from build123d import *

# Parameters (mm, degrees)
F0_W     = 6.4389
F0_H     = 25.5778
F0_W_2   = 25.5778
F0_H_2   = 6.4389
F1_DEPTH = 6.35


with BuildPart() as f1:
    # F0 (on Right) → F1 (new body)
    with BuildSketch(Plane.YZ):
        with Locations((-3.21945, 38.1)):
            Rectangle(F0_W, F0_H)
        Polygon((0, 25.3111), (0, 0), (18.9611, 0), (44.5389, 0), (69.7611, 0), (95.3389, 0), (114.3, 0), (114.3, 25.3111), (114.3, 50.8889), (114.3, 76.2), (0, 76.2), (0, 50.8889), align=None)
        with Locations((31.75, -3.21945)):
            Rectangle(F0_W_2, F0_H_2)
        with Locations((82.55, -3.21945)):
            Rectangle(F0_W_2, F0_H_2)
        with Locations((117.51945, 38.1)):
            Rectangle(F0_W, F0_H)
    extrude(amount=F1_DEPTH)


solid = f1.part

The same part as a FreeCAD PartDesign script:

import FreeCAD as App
import Part
import Sketcher
Q = App.Units.Quantity

doc = App.newDocument("Part")
body = doc.addObject("PartDesign::Body", "Body")

sketch1 = body.newObject("Sketcher::SketchObject", "Sketch")
sketch1.AttachmentSupport = (doc.getObject("YZ_Plane"), [""])
sketch1.MapMode = "FlatFace"
sketch1.addGeometry([
    Part.LineSegment(App.Vector(-6, 51, 0), App.Vector(-6, 25, 0)),
    Part.LineSegment(App.Vector(-6, 25, 0), App.Vector(0, 25, 0)),
    Part.LineSegment(App.Vector(0, 25, 0), App.Vector(0, 0, 0)),
    Part.LineSegment(App.Vector(0, 0, 0), App.Vector(19, 0, 0)),
    Part.LineSegment(App.Vector(19, 0, 0), App.Vector(19, -6, 0)),
    Part.LineSegment(App.Vector(19, -6, 0), App.Vector(45, -6, 0)),
    Part.LineSegment(App.Vector(45, -6, 0), App.Vector(45, 0, 0)),
    Part.LineSegment(App.Vector(45, 0, 0), App.Vector(70, 0, 0)),
    Part.LineSegment(App.Vector(70, 0, 0), App.Vector(70, -6, 0)),
    Part.LineSegment(App.Vector(70, -6, 0), App.Vector(95, -6, 0)),
    Part.LineSegment(App.Vector(95, -6, 0), App.Vector(95, 0, 0)),
    Part.LineSegment(App.Vector(95, 0, 0), App.Vector(114, 0, 0)),
    Part.LineSegment(App.Vector(114, 0, 0), App.Vector(114, 25, 0)),
    Part.LineSegment(App.Vector(114, 25, 0), App.Vector(121, 25, 0)),
    Part.LineSegment(App.Vector(121, 25, 0), App.Vector(121, 51, 0)),
    Part.LineSegment(App.Vector(121, 51, 0), App.Vector(114, 51, 0)),
    Part.LineSegment(App.Vector(114, 51, 0), App.Vector(114, 76, 0)),
    Part.LineSegment(App.Vector(114, 76, 0), App.Vector(0, 76, 0)),
    Part.LineSegment(App.Vector(0, 76, 0), App.Vector(0, 51, 0)),
    Part.LineSegment(App.Vector(0, 51, 0), App.Vector(-6, 51, 0)),
], False)
sketch1.addConstraint([
    Sketcher.Constraint("Coincident", 0, 2, 1, 1),
    Sketcher.Constraint("Coincident", 1, 2, 2, 1),
    Sketcher.Constraint("Coincident", 2, 2, 3, 1),
    Sketcher.Constraint("Coincident", 3, 2, 4, 1),
    Sketcher.Constraint("Coincident", 4, 2, 5, 1),
    Sketcher.Constraint("Coincident", 5, 2, 6, 1),
    Sketcher.Constraint("Coincident", 6, 2, 7, 1),
    Sketcher.Constraint("Coincident", 7, 2, 8, 1),
    Sketcher.Constraint("Coincident", 8, 2, 9, 1),
    Sketcher.Constraint("Coincident", 9, 2, 10, 1),
    Sketcher.Constraint("Coincident", 10, 2, 11, 1),
    Sketcher.Constraint("Coincident", 11, 2, 12, 1),
    Sketcher.Constraint("Coincident", 12, 2, 13, 1),
    Sketcher.Constraint("Coincident", 13, 2, 14, 1),
    Sketcher.Constraint("Coincident", 14, 2, 15, 1),
    Sketcher.Constraint("Coincident", 15, 2, 16, 1),
    Sketcher.Constraint("Coincident", 16, 2, 17, 1),
    Sketcher.Constraint("Coincident", 17, 2, 18, 1),
    Sketcher.Constraint("Coincident", 18, 2, 19, 1),
    Sketcher.Constraint("Coincident", 19, 2, 0, 1),
    Sketcher.Constraint("Vertical", 0),
    Sketcher.Constraint("Horizontal", 1),
    Sketcher.Constraint("Vertical", 2),
    Sketcher.Constraint("Horizontal", 3),
    Sketcher.Constraint("Vertical", 4),
    Sketcher.Constraint("Horizontal", 5),
    Sketcher.Constraint("Vertical", 6),
    Sketcher.Constraint("Horizontal", 7),
    Sketcher.Constraint("Vertical", 8),
    Sketcher.Constraint("Horizontal", 9),
    Sketcher.Constraint("Vertical", 10),
    Sketcher.Constraint("Horizontal", 11),
    Sketcher.Constraint("Vertical", 12),
    Sketcher.Constraint("Horizontal", 13),
    Sketcher.Constraint("Vertical", 14),
    Sketcher.Constraint("Horizontal", 15),
    Sketcher.Constraint("Vertical", 16),
    Sketcher.Constraint("Horizontal", 17),
    Sketcher.Constraint("Vertical", 18),
    Sketcher.Constraint("Horizontal", 19),
    Sketcher.Constraint("Coincident", 2, 2, -1, 1),
    Sketcher.Constraint("PointOnObject", 6, 2, -1),
    Sketcher.Constraint("PointOnObject", 10, 2, -1),
    Sketcher.Constraint("PointOnObject", 17, 2, -2),
    Sketcher.Constraint("Horizontal", 5, 2, 8, 2),
    Sketcher.Constraint("Horizontal", 1, 2, 12, 2),
    Sketcher.Constraint("Horizontal", 15, 2, 18, 2),
    Sketcher.Constraint("Vertical", 12, 2, 15, 2),
    Sketcher.Constraint("Equal", 5, 9),
    Sketcher.Constraint("Equal", 3, 11),
    Sketcher.Constraint("Equal", 1, 13),
    Sketcher.Constraint("Equal", 9, 0),
    Sketcher.Constraint("Equal", 19, 4),
    Sketcher.Constraint("Equal", 12, 16),
    Sketcher.Constraint("DistanceX", 17, 2, 17, 1, Q("4.5 in")),
    Sketcher.Constraint("DistanceY", -1, 1, 16, 2, Q("3 in")),
    Sketcher.Constraint("DistanceX", 0, 2, 3, 2, Q("1 in")),
    Sketcher.Constraint("DistanceX", 3, 2, 7, 2, Q("2 in")),
    Sketcher.Constraint("DistanceX", 5, 1, 5, 2, Q("1.007 in")),
])
pad1 = body.newObject("PartDesign::Pad", "Pad")
pad1.Profile = sketch1
pad1.Length = Q("0.25 in")

doc.recompute()
